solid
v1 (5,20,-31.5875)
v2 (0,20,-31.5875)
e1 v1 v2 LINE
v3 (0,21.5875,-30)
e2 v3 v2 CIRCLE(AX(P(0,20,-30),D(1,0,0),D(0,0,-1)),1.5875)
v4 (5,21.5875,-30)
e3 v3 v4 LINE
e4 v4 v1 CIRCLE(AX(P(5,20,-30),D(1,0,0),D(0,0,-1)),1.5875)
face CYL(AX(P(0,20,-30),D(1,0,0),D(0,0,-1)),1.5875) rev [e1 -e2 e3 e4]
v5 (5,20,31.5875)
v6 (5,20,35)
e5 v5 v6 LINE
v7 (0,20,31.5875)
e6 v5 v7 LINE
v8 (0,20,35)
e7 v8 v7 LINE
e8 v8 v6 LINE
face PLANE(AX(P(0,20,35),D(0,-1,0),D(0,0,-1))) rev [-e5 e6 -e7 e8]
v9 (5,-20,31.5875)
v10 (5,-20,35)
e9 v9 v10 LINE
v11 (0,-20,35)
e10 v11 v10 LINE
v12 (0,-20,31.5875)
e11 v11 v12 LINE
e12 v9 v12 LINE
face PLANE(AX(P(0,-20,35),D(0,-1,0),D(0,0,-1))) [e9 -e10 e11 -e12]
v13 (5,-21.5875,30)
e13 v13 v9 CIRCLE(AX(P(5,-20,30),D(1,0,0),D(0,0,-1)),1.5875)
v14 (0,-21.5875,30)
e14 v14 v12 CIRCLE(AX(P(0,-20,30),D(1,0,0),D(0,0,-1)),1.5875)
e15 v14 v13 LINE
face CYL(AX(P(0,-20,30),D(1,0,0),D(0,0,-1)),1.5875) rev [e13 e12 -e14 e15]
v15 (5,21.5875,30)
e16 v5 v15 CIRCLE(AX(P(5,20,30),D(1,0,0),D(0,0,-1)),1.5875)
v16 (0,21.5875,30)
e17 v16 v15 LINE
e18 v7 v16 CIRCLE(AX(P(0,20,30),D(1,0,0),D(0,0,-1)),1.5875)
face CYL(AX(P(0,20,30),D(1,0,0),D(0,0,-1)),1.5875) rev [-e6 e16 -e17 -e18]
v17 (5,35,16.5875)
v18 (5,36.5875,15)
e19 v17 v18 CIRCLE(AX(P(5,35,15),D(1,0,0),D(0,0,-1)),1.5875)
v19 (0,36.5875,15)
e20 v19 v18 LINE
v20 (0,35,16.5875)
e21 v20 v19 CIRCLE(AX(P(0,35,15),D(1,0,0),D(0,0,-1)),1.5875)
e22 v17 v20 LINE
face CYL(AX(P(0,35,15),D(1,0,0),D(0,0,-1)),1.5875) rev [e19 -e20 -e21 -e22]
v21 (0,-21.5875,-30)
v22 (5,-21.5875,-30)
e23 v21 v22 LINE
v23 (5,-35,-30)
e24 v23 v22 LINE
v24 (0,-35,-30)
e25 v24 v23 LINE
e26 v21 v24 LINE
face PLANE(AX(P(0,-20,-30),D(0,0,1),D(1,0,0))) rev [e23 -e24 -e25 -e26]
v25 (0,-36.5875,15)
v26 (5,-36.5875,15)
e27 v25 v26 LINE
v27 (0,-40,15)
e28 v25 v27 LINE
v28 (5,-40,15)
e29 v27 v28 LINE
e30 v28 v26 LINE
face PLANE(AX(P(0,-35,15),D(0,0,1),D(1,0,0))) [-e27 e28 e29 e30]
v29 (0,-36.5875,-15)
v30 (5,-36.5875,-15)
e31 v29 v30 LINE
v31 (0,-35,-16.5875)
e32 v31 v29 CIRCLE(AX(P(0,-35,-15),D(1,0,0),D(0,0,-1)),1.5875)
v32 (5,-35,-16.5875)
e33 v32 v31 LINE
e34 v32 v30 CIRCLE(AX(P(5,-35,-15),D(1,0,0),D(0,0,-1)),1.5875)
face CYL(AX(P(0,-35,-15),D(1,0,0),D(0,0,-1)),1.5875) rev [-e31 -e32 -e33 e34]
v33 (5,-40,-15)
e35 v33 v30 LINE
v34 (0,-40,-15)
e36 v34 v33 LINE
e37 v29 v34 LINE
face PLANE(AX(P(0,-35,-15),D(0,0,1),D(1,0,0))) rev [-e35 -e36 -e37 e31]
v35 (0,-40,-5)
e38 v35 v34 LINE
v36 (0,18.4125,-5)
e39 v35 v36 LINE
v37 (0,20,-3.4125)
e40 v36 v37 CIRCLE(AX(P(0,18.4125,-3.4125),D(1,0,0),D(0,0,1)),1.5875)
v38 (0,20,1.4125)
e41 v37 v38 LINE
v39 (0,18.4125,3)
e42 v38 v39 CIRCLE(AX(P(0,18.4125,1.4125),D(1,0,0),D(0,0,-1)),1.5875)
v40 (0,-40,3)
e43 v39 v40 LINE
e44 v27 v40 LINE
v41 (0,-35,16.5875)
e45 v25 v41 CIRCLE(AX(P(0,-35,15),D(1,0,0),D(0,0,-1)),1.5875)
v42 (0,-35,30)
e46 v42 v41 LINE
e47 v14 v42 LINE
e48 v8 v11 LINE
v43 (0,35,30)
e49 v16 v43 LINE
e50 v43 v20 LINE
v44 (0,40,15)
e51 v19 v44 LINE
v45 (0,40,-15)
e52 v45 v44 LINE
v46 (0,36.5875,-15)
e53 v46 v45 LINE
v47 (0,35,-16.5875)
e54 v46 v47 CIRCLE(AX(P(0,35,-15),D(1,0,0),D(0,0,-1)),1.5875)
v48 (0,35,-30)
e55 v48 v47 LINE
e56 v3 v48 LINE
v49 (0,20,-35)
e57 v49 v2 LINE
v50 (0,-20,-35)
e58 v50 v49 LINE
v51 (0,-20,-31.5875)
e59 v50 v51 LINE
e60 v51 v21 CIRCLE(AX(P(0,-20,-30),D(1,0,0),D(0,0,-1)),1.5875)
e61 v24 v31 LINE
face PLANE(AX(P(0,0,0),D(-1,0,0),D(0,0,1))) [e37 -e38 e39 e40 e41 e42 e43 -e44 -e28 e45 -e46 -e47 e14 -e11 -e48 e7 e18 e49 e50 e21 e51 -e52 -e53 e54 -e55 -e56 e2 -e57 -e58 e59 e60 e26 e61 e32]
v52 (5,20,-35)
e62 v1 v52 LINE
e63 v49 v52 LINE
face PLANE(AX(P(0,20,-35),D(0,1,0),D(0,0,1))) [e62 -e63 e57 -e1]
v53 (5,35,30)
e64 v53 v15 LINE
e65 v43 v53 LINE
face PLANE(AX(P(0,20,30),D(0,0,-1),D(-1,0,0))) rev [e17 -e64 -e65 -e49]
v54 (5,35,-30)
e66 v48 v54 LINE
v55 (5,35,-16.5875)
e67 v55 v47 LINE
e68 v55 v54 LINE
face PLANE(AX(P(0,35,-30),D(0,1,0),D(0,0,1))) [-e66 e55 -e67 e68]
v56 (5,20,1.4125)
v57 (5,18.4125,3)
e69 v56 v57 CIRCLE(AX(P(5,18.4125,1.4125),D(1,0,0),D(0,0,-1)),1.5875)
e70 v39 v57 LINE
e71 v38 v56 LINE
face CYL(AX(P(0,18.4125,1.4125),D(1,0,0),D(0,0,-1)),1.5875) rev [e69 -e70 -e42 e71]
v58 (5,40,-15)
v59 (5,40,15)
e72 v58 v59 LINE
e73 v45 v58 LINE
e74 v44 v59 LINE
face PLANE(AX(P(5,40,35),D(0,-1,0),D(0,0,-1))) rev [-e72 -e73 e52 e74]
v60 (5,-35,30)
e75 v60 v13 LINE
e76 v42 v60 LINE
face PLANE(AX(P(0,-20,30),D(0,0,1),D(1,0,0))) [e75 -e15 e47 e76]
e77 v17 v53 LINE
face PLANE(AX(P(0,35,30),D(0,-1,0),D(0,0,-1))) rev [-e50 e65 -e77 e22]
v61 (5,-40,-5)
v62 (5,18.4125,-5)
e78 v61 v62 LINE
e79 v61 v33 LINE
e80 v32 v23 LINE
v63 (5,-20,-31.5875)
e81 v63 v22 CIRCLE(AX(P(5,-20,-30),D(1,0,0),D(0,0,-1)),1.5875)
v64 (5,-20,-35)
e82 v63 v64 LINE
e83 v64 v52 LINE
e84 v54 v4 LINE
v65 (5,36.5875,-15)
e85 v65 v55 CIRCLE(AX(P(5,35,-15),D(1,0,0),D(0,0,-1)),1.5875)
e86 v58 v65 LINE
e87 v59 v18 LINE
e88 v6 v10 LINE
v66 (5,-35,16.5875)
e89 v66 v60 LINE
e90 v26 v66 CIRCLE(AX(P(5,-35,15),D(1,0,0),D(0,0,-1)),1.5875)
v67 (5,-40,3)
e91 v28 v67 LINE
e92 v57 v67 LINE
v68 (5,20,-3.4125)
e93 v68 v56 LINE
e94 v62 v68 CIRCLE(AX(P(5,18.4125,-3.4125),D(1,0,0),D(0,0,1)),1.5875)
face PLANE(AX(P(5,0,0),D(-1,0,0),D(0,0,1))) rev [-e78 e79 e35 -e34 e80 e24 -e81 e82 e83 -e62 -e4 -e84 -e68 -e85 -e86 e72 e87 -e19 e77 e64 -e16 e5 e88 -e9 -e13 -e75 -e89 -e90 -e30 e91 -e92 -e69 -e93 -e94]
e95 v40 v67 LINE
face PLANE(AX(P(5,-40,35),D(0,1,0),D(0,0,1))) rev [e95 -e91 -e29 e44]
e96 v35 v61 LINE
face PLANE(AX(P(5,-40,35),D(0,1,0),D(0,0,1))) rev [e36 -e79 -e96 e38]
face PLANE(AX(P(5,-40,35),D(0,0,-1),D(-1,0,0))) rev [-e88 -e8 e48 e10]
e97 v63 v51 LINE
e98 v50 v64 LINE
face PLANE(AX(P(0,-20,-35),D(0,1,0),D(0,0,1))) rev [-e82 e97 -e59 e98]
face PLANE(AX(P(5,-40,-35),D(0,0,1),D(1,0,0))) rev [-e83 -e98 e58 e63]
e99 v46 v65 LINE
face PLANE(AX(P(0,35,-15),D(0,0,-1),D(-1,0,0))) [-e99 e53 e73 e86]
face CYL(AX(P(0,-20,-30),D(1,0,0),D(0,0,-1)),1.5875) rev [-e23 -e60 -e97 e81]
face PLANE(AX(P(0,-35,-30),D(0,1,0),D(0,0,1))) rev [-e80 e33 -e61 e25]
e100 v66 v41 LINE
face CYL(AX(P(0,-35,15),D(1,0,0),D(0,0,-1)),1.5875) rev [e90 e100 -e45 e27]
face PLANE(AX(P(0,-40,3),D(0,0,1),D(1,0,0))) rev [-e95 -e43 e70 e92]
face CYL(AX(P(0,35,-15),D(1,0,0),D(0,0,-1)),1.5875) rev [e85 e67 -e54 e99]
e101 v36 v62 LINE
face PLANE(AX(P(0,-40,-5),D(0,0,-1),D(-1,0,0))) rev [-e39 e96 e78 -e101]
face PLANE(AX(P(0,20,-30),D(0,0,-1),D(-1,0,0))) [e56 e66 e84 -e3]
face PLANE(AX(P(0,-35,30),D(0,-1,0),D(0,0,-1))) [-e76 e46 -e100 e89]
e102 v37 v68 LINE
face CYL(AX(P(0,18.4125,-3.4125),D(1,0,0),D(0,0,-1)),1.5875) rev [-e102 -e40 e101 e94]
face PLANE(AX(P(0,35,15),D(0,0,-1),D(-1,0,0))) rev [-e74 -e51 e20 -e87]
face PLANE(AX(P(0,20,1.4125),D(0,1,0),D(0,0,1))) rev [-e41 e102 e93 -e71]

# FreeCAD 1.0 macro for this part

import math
import FreeCAD as App
import Part
import Sketcher
from FreeCAD import Vector

doc = App.newDocument("Part")
body = doc.addObject("PartDesign::Body", "Body")

sketch1 = doc.addObject("Sketcher::SketchObject", "Sketch")
body.addObject(sketch1)
sketch1.AttachmentSupport = (doc.YZ_Plane, [""])
sketch1.MapMode = "FlatFace"
sketch1.addGeometry(Part.LineSegment(Vector(40, 35, 0), Vector(-40, 35, 0)), False)
sketch1.addGeometry(Part.LineSegment(Vector(-40, 35, 0), Vector(-40, -35, 0)), False)
sketch1.addGeometry(Part.LineSegment(Vector(-40, -35, 0), Vector(40, -35, 0)), False)
sketch1.addGeometry(Part.LineSegment(Vector(40, -35, 0), Vector(40, 35, 0)), False)
sketch1.addConstraint(Sketcher.Constraint("Coincident", 0, 2, 1, 1))
sketch1.addConstraint(Sketcher.Constraint("Coincident", 1, 2, 2, 1))
sketch1.addConstraint(Sketcher.Constraint("Coincident", 2, 2, 3, 1))
sketch1.addConstraint(Sketcher.Constraint("Coincident", 3, 2, 0, 1))
sketch1.addConstraint(Sketcher.Constraint("Horizontal", 0))
sketch1.addConstraint(Sketcher.Constraint("Vertical", 1))
sketch1.addConstraint(Sketcher.Constraint("Horizontal", 2))
sketch1.addConstraint(Sketcher.Constraint("Vertical", 3))
sketch1.addConstraint(Sketcher.Constraint("Symmetric", 0, 2, 2, 2, -1, 1))
sketch1.addConstraint(Sketcher.Constraint("DistanceX", 0, 2, 0, 1, 80.0))
sketch1.addConstraint(Sketcher.Constraint("DistanceY", 1, 2, 1, 1, 70.0))
pad1 = doc.addObject("PartDesign::Pad", "Pad")
body.addObject(pad1)
pad1.Profile = sketch1
pad1.Length = 5

sketch2 = doc.addObject("Sketcher::SketchObject", "Sketch001")
body.addObject(sketch2)
sketch2.AttachmentSupport = (doc.YZ_Plane, [""])
sketch2.MapMode = "FlatFace"
sketch2.AttachmentOffset = App.Placement(Vector(0, 0, -1), App.Rotation())
sketch2.addGeometry(Part.LineSegment(Vector(20, 35, 0), Vector(20, 30, 0)), False)
sketch2.addGeometry(Part.LineSegment(Vector(20, 30, 0), Vector(35, 30, 0)), False)
sketch2.addGeometry(Part.LineSegment(Vector(35, 30, 0), Vector(35, 15, 0)), False)
sketch2.addGeometry(Part.LineSegment(Vector(35, 15, 0), Vector(40, 15, 0)), False)
sketch2.addGeometry(Part.LineSegment(Vector(40, 15, 0), Vector(40, 35, 0)), False)
sketch2.addGeometry(Part.LineSegment(Vector(40, 35, 0), Vector(20, 35, 0)), False)
sketch2.addConstraint(Sketcher.Constraint("Coincident", 0, 2, 1, 1))
sketch2.addConstraint(Sketcher.Constraint("Coincident", 1, 2, 2, 1))
sketch2.addConstraint(Sketcher.Constraint("Coincident", 2, 2, 3, 1))
sketch2.addConstraint(Sketcher.Constraint("Coincident", 3, 2, 4, 1))
sketch2.addConstraint(Sketcher.Constraint("Coincident", 4, 2, 5, 1))
sketch2.addConstraint(Sketcher.Constraint("Coincident", 5, 2, 0, 1))
sketch2.addConstraint(Sketcher.Constraint("Vertical", 0))
sketch2.addConstraint(Sketcher.Constraint("Horizontal", 1))
sketch2.addConstraint(Sketcher.Constraint("Vertical", 2))
sketch2.addConstraint(Sketcher.Constraint("Horizontal", 3))
sketch2.addConstraint(Sketcher.Constraint("Vertical", 4))
sketch2.addConstraint(Sketcher.Constraint("Horizontal", 5))
sketch2.addConstraint(Sketcher.Constraint("Equal", 3, 0))
sketch2.addConstraint(Sketcher.Constraint("Equal", 1, 2))
sketch2.addConstraint(Sketcher.Constraint("DistanceX", 1, 1, 1, 2, 15.0))
sketch2.addConstraint(Sketcher.Constraint("DistanceX", 3, 1, 3, 2, 5.0))
sketch2.addConstraint(Sketcher.Constraint("DistanceX", -1, 1, 0, 2, 20.0))
sketch2.addConstraint(Sketcher.Constraint("DistanceY", -1, 1, 0, 2, 30.0))
pocket1 = doc.addObject("PartDesign::Pocket", "Pocket")
body.addObject(pocket1)
pocket1.Profile = sketch2
pocket1.Length = 7
pocket1.Reversed = True
doc.recompute()

mirrored = doc.addObject("PartDesign::Mirrored", "Mirrored")
body.addObject(mirrored)
mirrored.Originals = [pocket1]
mirrored.MirrorPlane = (doc.XY_Plane, [""])
body.Tip = mirrored
doc.recompute()

mirrored2 = doc.addObject("PartDesign::Mirrored", "Mirrored001")
body.addObject(mirrored2)
mirrored2.Originals = [pocket1]
mirrored2.MirrorPlane = (doc.XZ_Plane, [""])
body.Tip = mirrored2

sketch3 = doc.addObject("Sketcher::SketchObject", "Sketch002")
body.addObject(sketch3)
sketch3.AttachmentSupport = (doc.YZ_Plane, [""])
sketch3.MapMode = "FlatFace"
sketch3.AttachmentOffset = App.Placement(Vector(0, 0, -1), App.Rotation())
sketch3.addGeometry(Part.LineSegment(Vector(-20, -35, 0), Vector(-20, -30, 0)), False)
sketch3.addGeometry(Part.LineSegment(Vector(-20, -30, 0), Vector(-35, -30, 0)), False)
sketch3.addGeometry(Part.LineSegment(Vector(-35, -30, 0), Vector(-35, -15, 0)), False)
sketch3.addGeometry(Part.LineSegment(Vector(-35, -15, 0), Vector(-40, -15, 0)), False)
sketch3.addGeometry(Part.LineSegment(Vector(-40, -15, 0), Vector(-40, -35, 0)), False)
sketch3.addGeometry(Part.LineSegment(Vector(-40, -35, 0), Vector(-20, -35, 0)), False)
sketch3.addConstraint(Sketcher.Constraint("Coincident", 0, 2, 1, 1))
sketch3.addConstraint(Sketcher.Constraint("Coincident", 1, 2, 2, 1))
sketch3.addConstraint(Sketcher.Constraint("Coincident", 2, 2, 3, 1))
sketch3.addConstraint(Sketcher.Constraint("Coincident", 3, 2, 4, 1))
sketch3.addConstraint(Sketcher.Constraint("Coincident", 4, 2, 5, 1))
sketch3.addConstraint(Sketcher.Constraint("Coincident", 5, 2, 0, 1))
sketch3.addConstraint(Sketcher.Constraint("Vertical", 0))
sketch3.addConstraint(Sketcher.Constraint("Horizontal", 1))
sketch3.addConstraint(Sketcher.Constraint("Vertical", 2))
sketch3.addConstraint(Sketcher.Constraint("Horizontal", 3))
sketch3.addConstraint(Sketcher.Constraint("Vertical", 4))
sketch3.addConstraint(Sketcher.Constraint("Horizontal", 5))
sketch3.addConstraint(Sketcher.Constraint("Equal", 3, 0))
sketch3.addConstraint(Sketcher.Constraint("Equal", 1, 2))
sketch3.addConstraint(Sketcher.Constraint("DistanceX", 1, 2, 1, 1, 15.0))
sketch3.addConstraint(Sketcher.Constraint("DistanceX", 3, 2, 3, 1, 5.0))
sketch3.addConstraint(Sketcher.Constraint("DistanceX", 0, 2, -1, 1, 20.0))
sketch3.addConstraint(Sketcher.Constraint("DistanceY", 0, 2, -1, 1, 30.0))
pocket2 = doc.addObject("PartDesign::Pocket", "Pocket001")
body.addObject(pocket2)
pocket2.Profile = sketch3
pocket2.Length = 7
pocket2.Reversed = True

sketch4 = doc.addObject("Sketcher::SketchObject", "Sketch003")
body.addObject(sketch4)
sketch4.AttachmentSupport = (doc.YZ_Plane, [""])
sketch4.MapMode = "FlatFace"
sketch4.AttachmentOffset = App.Placement(Vector(0, 0, 5), App.Rotation())
sketch4.addGeometry(Part.LineSegment(Vector(-40, 3, 0), Vector(-40, -5, 0)), False)
sketch4.addGeometry(Part.LineSegment(Vector(-40, -5, 0), Vector(18.4, -5, 0)), False)
sketch4.addGeometry(Part.ArcOfCircle(Part.Circle(Vector(18.4, -3.4, 0), Vector(0, 0, 1), 1.6), math.radians(-90), math.radians(0)), False)
sketch4.addGeometry(Part.LineSegment(Vector(20, -3.4, 0), Vector(20, 1.4, 0)), False)
sketch4.addGeometry(Part.ArcOfCircle(Part.Circle(Vector(18.4, 1.4, 0), Vector(0, 0, 1), 1.6), math.radians(0), math.radians(90)), False)
sketch4.addGeometry(Part.LineSegment(Vector(18.4, 3, 0), Vector(-40, 3, 0)), False)
sketch4.addConstraint(Sketcher.Constraint("Coincident", 0, 2, 1, 1))
sketch4.addConstraint(Sketcher.Constraint("Tangent", 1, 2, 2, 1))
sketch4.addConstraint(Sketcher.Constraint("Tangent", 2, 2, 3, 1))
sketch4.addConstraint(Sketcher.Constraint("Tangent", 3, 2, 4, 1))
sketch4.addConstraint(Sketcher.Constraint("Tangent", 4, 2, 5, 1))
sketch4.addConstraint(Sketcher.Constraint("Coincident", 5, 2, 0, 1))
sketch4.addConstraint(Sketcher.Constraint("Vertical", 0))
sketch4.addConstraint(Sketcher.Constraint("Horizontal", 1))
sketch4.addConstraint(Sketcher.Constraint("Vertical", 3))
sketch4.addConstraint(Sketcher.Constraint("Horizontal", 5))
sketch4.addConstraint(Sketcher.Constraint("Equal", 2, 4))
sketch4.addConstraint(Sketcher.Constraint("DistanceY", 0, 2, 0, 1, 8.0))
sketch4.addConstraint(Sketcher.Constraint("DistanceX", 0, 2, -1, 1, 40.0))
sketch4.addConstraint(Sketcher.Constraint("DistanceY", 0, 2, -1, 1, 5.0))
sketch4.addConstraint(Sketcher.Constraint("DistanceX", -1, 1, 2, 2, 20.0))
sketch4.addConstraint(Sketcher.Constraint("Radius", 2, 1.5875))
pocket3 = doc.addObject("PartDesign::Pocket", "Pocket002")
body.addObject(pocket3)
pocket3.Profile = sketch4
pocket3.Type = "ThroughAll"
pocket3.Midplane = True

sketch5 = doc.addObject("Sketcher::SketchObject", "Sketch004")
body.addObject(sketch5)
sketch5.AttachmentSupport = (doc.YZ_Plane, [""])
sketch5.MapMode = "FlatFace"
sketch5.AttachmentOffset = App.Placement(Vector(0, 0, 5), App.Rotation())
sketch5.addGeometry(Part.Circle(Vector(35, 15, 0), Vector(0, 0, 1), 1.6), False)
sketch5.addGeometry(Part.Circle(Vector(35, -15, 0), Vector(0, 0, 1), 1.6), False)
sketch5.addGeometry(Part.Circle(Vector(20, -30, 0), Vector(0, 0, 1), 1.6), False)
sketch5.addGeometry(Part.Circle(Vector(-20, -30, 0), Vector(0, 0, 1), 1.6), False)
sketch5.addGeometry(Part.Circle(Vector(-35, -15, 0), Vector(0, 0, 1), 1.6), False)
sketch5.addGeometry(Part.Circle(Vector(-35, 15, 0), Vector(0, 0, 1), 1.6), False)
sketch5.addGeometry(Part.Circle(Vector(-20, 30, 0), Vector(0, 0, 1), 1.6), False)
sketch5.addGeometry(Part.Circle(Vector(20, 30, 0), Vector(0, 0, 1), 1.6), False)
sketch5.addConstraint(Sketcher.Constraint("Equal", 0, 1))
sketch5.addConstraint(Sketcher.Constraint("Equal", 1, 2))
sketch5.addConstraint(Sketcher.Constraint("Equal", 2, 3))
sketch5.addConstraint(Sketcher.Constraint("Equal", 3, 4))
sketch5.addConstraint(Sketcher.Constraint("Equal", 4, 5))
sketch5.addConstraint(Sketcher.Constraint("Equal", 5, 6))
sketch5.addConstraint(Sketcher.Constraint("Equal", 6, 7))
sketch5.addConstraint(Sketcher.Constraint("Symmetric", 0, 3, 4, 3, -1, 1))
sketch5.addConstraint(Sketcher.Constraint("Symmetric", 1, 3, 5, 3, -1, 1))
sketch5.addConstraint(Sketcher.Constraint("Symmetric", 2, 3, 6, 3, -1, 1))
sketch5.addConstraint(Sketcher.Constraint("Symmetric", 3, 3, 7, 3, -1, 1))
sketch5.addConstraint(Sketcher.Constraint("Symmetric", 2, 3, 3, 3, -2))
sketch5.addConstraint(Sketcher.Constraint("Symmetric", 1, 3, 4, 3, -2))
sketch5.addConstraint(Sketcher.Constraint("Diameter", 0, 3.175))
sketch5.addConstraint(Sketcher.Constraint("DistanceX", -1, 1, 0, 3, 35.0))
sketch5.addConstraint(Sketcher.Constraint("DistanceY", -1, 1, 0, 3, 15.0))
sketch5.addConstraint(Sketcher.Constraint("DistanceX", -1, 1, 2, 3, 20.0))
sketch5.addConstraint(Sketcher.Constraint("DistanceY", 2, 3, -1, 1, 30.0))
pocket4 = doc.addObject("PartDesign::Pocket", "Pocket003")
body.addObject(pocket4)
pocket4.Profile = sketch5
pocket4.Type = "ThroughAll"

doc.recompute()
